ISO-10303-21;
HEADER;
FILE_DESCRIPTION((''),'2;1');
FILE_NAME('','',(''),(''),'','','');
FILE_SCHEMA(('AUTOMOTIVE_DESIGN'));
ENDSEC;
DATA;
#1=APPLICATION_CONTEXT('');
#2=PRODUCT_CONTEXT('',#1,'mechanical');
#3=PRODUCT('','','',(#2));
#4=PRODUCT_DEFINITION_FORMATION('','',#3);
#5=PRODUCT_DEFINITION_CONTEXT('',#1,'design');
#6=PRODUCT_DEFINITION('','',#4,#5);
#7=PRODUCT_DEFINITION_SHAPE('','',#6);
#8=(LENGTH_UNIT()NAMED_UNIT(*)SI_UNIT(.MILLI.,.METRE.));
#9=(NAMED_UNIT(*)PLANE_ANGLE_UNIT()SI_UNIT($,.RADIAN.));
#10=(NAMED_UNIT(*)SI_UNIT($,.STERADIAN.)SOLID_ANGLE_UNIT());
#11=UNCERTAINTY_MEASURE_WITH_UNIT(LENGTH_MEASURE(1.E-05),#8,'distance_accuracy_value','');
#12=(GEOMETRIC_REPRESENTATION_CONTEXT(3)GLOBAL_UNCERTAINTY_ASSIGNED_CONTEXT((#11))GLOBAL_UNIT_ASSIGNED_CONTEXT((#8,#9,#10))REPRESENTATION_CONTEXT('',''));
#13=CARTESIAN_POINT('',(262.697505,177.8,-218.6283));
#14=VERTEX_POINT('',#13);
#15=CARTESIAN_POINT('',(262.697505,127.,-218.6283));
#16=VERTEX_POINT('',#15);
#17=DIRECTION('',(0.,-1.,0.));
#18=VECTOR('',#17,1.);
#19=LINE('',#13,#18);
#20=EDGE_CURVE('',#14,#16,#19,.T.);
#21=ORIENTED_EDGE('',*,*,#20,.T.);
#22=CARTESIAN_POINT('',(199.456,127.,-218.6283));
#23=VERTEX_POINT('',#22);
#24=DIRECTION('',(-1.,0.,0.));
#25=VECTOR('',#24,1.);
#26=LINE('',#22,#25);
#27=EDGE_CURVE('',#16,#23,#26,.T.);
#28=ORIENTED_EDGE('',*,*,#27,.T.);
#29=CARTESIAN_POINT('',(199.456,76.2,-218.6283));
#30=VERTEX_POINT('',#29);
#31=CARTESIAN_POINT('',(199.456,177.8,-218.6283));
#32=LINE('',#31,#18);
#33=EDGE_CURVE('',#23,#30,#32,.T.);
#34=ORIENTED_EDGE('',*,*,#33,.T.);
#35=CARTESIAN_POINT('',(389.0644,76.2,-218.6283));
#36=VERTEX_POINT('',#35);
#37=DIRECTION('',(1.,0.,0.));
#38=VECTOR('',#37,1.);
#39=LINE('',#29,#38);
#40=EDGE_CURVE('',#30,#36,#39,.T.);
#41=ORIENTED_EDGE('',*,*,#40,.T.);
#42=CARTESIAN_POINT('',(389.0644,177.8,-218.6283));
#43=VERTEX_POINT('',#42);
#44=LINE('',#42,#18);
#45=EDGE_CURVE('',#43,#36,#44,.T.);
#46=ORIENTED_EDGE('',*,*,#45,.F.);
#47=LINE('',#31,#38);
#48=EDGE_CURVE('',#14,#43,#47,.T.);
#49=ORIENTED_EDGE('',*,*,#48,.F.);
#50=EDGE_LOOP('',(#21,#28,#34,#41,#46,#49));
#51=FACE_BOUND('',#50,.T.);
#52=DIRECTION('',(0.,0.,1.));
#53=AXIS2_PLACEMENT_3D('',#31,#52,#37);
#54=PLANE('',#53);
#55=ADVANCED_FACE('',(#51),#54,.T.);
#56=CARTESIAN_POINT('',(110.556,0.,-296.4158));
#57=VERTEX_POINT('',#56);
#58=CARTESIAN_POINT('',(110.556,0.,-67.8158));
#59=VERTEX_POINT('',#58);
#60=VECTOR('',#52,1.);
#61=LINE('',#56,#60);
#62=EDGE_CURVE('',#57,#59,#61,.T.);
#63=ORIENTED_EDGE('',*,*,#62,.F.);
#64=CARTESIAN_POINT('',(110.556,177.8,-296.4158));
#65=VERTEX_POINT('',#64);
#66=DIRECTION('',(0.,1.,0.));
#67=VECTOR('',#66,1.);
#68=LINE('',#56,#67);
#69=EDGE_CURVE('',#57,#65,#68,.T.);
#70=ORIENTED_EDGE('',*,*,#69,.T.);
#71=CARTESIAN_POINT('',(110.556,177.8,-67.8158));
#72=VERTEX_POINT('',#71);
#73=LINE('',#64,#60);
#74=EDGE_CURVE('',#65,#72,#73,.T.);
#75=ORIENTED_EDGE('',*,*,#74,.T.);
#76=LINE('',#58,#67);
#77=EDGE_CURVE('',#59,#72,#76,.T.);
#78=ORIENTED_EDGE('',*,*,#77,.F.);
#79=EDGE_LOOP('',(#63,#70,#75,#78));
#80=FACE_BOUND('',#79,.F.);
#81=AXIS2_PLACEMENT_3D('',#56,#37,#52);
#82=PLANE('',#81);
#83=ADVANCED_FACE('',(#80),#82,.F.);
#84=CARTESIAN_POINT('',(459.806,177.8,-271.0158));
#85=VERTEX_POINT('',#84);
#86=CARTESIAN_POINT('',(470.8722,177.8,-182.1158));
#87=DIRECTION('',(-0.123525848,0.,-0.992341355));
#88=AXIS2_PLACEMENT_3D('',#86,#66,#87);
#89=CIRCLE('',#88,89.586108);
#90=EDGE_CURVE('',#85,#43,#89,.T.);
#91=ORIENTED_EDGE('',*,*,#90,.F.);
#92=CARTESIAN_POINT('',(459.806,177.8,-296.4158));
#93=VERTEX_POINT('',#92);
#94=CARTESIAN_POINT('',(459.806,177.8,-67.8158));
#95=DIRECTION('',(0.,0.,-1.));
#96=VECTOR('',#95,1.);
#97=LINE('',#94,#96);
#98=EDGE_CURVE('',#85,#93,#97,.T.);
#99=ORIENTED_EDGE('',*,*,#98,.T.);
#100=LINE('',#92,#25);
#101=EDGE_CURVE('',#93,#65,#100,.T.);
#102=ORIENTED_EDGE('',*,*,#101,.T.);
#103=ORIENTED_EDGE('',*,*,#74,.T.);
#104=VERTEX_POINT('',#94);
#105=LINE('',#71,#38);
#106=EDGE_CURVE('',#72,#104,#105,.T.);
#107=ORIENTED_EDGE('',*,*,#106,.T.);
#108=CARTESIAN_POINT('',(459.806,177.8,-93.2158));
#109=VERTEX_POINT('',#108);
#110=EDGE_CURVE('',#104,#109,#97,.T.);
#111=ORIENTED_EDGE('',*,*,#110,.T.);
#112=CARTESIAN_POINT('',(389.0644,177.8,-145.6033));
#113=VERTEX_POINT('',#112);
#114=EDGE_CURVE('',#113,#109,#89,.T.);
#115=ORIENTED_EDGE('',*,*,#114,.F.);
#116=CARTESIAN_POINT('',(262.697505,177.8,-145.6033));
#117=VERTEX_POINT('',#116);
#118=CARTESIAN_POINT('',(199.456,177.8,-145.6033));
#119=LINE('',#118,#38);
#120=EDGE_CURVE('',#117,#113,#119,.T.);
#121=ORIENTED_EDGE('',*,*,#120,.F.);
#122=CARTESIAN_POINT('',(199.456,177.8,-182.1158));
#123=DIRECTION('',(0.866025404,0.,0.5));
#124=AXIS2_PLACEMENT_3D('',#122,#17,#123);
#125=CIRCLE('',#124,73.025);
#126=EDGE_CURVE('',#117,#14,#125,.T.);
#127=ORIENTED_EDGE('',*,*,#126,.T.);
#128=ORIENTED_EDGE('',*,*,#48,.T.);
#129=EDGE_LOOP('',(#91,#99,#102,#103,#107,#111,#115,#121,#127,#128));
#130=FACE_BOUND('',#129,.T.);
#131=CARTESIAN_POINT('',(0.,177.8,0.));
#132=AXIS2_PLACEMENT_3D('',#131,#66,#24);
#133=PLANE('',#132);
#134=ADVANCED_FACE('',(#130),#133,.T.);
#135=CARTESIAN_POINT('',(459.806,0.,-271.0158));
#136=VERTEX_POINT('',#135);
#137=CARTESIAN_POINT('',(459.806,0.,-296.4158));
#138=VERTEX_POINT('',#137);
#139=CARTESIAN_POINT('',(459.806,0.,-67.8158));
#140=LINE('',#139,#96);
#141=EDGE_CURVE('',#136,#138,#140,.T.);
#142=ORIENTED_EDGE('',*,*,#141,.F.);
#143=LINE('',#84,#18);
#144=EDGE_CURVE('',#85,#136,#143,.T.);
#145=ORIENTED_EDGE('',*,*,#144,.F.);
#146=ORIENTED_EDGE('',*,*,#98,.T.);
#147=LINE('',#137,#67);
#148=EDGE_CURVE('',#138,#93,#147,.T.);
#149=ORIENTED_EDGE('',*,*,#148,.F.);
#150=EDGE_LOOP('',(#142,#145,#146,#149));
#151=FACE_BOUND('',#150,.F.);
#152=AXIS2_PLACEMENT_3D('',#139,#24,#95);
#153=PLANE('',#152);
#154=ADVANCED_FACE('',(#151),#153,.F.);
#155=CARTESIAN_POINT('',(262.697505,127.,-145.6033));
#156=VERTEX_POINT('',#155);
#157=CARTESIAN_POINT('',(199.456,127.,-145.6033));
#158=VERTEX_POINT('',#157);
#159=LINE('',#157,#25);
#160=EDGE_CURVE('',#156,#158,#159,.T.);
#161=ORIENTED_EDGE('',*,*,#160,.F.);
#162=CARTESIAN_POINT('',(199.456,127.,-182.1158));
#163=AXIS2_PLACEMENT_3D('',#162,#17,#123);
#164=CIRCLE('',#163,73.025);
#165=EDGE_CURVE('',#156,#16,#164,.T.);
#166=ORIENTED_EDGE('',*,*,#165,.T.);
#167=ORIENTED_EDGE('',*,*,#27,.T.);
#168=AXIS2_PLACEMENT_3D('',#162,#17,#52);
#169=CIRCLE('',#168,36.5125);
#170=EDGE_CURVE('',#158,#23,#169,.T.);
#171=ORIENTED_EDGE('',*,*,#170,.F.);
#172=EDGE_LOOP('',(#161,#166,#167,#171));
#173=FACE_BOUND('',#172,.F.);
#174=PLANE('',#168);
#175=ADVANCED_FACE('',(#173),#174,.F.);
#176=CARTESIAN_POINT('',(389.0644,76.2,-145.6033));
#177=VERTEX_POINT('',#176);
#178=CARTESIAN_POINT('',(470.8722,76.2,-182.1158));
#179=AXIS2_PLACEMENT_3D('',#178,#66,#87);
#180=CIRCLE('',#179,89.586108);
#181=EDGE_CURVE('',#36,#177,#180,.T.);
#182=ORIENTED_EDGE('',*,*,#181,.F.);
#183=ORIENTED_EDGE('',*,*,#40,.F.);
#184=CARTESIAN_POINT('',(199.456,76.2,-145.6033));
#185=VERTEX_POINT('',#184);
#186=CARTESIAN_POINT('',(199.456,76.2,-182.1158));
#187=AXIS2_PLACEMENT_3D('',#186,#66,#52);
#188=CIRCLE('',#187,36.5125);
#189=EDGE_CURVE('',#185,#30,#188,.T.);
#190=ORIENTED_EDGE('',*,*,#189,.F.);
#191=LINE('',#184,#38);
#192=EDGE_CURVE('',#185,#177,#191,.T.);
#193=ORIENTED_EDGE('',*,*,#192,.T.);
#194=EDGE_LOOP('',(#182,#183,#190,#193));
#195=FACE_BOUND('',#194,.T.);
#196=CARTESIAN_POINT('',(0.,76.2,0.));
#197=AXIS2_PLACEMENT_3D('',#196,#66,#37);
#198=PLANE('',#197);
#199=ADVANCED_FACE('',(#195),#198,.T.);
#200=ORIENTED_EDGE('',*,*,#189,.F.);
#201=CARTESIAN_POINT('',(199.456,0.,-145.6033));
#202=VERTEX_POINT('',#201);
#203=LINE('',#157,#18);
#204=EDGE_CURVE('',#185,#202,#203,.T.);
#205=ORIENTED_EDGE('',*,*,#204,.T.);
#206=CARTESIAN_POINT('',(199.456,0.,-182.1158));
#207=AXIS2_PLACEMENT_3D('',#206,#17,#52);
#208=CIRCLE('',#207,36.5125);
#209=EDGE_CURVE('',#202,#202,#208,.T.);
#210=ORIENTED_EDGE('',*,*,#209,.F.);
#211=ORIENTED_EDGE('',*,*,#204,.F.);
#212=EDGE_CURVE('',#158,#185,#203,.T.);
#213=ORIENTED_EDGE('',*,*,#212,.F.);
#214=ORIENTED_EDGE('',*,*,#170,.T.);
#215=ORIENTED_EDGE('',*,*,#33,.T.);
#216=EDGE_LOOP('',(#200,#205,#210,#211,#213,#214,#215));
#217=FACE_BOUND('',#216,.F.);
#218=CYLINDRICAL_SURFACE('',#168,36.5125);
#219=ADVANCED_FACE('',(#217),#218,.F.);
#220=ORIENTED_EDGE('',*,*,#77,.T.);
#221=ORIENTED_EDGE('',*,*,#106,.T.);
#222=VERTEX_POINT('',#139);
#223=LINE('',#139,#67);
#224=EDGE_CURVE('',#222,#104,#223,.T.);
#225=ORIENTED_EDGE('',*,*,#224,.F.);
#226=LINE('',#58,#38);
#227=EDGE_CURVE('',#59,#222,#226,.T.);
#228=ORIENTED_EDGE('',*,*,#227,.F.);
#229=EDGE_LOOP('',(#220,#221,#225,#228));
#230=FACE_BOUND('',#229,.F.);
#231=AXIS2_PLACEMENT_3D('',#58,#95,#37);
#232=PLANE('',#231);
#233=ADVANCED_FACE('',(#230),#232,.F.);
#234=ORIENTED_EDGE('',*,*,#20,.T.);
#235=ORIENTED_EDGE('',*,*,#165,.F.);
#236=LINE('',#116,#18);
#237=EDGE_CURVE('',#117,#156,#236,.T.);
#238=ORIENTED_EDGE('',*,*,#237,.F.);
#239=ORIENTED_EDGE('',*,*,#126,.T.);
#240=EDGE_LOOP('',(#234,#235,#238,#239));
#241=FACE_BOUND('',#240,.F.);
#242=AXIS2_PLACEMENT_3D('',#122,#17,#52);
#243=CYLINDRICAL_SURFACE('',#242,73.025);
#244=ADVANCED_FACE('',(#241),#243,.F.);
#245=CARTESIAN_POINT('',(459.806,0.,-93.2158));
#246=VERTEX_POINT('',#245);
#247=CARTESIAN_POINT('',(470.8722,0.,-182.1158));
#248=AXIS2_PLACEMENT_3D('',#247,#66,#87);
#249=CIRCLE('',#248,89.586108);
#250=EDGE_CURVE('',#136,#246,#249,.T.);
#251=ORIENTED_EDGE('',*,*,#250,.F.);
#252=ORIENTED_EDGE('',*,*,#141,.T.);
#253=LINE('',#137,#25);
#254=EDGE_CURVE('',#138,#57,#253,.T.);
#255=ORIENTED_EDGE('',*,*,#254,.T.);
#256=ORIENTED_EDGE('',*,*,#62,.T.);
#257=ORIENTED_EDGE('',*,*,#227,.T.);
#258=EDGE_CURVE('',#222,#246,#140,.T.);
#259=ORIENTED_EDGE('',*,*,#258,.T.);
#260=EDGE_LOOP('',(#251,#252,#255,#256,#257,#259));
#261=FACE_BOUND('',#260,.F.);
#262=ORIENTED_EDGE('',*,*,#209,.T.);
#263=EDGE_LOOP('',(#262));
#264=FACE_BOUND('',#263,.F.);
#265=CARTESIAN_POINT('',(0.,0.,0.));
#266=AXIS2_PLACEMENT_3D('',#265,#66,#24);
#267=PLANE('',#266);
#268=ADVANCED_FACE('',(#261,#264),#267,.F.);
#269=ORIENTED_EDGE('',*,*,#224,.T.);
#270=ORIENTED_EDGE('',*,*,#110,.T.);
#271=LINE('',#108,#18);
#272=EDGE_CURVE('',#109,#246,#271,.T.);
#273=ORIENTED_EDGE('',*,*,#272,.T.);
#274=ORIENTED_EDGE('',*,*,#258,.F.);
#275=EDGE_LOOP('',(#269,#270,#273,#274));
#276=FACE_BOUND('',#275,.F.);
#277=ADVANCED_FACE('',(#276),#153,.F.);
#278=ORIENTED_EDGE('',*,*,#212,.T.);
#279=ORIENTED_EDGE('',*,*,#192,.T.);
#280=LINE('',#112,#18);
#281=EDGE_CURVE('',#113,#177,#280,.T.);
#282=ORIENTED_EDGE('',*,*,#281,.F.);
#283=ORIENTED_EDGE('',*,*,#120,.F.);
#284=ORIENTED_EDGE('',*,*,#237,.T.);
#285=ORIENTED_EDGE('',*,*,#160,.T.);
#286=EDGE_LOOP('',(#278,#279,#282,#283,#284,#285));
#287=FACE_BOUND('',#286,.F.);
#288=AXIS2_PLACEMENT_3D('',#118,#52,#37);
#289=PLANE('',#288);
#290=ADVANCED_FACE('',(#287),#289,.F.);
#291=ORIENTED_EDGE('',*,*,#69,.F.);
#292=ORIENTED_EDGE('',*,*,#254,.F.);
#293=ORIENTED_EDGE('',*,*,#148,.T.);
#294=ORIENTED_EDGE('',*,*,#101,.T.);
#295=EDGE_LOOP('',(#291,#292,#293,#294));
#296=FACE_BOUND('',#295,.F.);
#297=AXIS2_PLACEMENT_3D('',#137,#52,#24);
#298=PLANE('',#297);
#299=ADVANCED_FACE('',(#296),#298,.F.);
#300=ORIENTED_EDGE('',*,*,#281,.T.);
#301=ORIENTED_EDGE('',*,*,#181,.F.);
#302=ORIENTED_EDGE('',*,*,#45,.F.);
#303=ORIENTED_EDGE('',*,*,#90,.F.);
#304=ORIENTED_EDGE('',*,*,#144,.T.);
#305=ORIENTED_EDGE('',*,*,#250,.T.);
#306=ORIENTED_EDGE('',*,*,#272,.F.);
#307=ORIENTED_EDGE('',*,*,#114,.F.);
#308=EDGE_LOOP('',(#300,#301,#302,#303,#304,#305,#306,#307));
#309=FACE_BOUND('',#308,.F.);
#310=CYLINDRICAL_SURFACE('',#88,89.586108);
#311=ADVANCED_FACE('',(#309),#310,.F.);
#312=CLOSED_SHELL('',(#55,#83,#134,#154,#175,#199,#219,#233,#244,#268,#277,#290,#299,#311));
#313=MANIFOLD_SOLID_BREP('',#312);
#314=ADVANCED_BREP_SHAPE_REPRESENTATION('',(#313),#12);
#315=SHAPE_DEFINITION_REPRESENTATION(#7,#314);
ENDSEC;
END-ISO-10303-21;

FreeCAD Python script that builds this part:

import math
import FreeCAD as App
import Part
import Sketcher

V = App.Vector
Q = App.Units.Quantity

doc = App.newDocument("Part")
body = doc.addObject("PartDesign::Body", "Body")

# Sketch on XZ plane
sketch1 = doc.addObject("Sketcher::SketchObject", "Sketch")
body.addObject(sketch1)
sketch1.AttachmentSupport = (doc.XZ_Plane, [""])
sketch1.MapMode = "FlatFace"
sketch1.addGeometry([
    Part.LineSegment(V(111, -296, 0), V(111, -68, 0)),
    Part.LineSegment(V(111, -68, 0), V(460, -68, 0)),
    Part.LineSegment(V(460, -68, 0), V(460, -296, 0)),
    Part.LineSegment(V(460, -296, 0), V(111, -296, 0)),
], False)
sketch1.addConstraint([
    Sketcher.Constraint("Coincident", 0, 2, 1, 1),
    Sketcher.Constraint("Coincident", 1, 2, 2, 1),
    Sketcher.Constraint("Coincident", 2, 2, 3, 1),
    Sketcher.Constraint("Coincident", 3, 2, 0, 1),
    Sketcher.Constraint("Vertical", 0),
    Sketcher.Constraint("Horizontal", 1),
    Sketcher.Constraint("Vertical", 2),
    Sketcher.Constraint("Horizontal", 3),
    Sketcher.Constraint("DistanceY", 0, 1, 0, 2, Q("9 in")),
    Sketcher.Constraint("DistanceX", 1, 1, 1, 2, Q("13.75 in")),
    Sketcher.Constraint("DistanceX", -1, 1, 0, 2, Q("4.3526 in")),
    Sketcher.Constraint("DistanceY", 0, 2, -1, 1, 67.8158),
])
pad1 = doc.addObject("PartDesign::Pad", "Pad")
body.addObject(pad1)
pad1.Profile = sketch1
pad1.Length = Q("7 in")
pad1.Reversed = True

# Sketch on XZ plane
sketch2 = doc.addObject("Sketcher::SketchObject", "Sketch001")
body.addObject(sketch2)
sketch2.AttachmentSupport = (doc.XZ_Plane, [""])
sketch2.MapMode = "FlatFace"
sketch2.AttachmentOffset = App.Placement(V(0, 0, -7 * 25.4), App.Rotation())
sketch2.addGeometry([
    Part.LineSegment(V(460, -93, 0), V(460, -271, 0)),
    Part.ArcOfCircle(Part.Circle(V(471, -182, 0), V(0, 0, 1), 90), math.radians(97), math.radians(263)),
], False)
sketch2.addConstraint([
    Sketcher.Constraint("Coincident", 0, 1, 1, 1),
    Sketcher.Constraint("Coincident", 1, 2, 0, 2),
    Sketcher.Constraint("Vertical", 0),
    Sketcher.Constraint("DistanceY", 0, 2, 0, 1, Q("7 in")),
    Sketcher.Constraint("Radius", 1, Q("3.5270079 in")),
    Sketcher.Constraint("DistanceX", -1, 1, 0, 1, Q("18.1026 in")),
    Sketcher.Constraint("DistanceY", 1, 3, -1, 1, 182.1158),
])
pocket1 = doc.addObject("PartDesign::Pocket", "Pocket")
body.addObject(pocket1)
pocket1.Profile = sketch2
pocket1.Type = "ThroughAll"
pocket1.Reversed = True

# Sketch on XZ plane
sketch3 = doc.addObject("Sketcher::SketchObject", "Sketch002")
body.addObject(sketch3)
sketch3.AttachmentSupport = (doc.XZ_Plane, [""])
sketch3.MapMode = "FlatFace"
sketch3.AttachmentOffset = App.Placement(V(0, 0, -7 * 25.4), App.Rotation())
sketch3.addGeometry(Part.Circle(V(199, -182, 0), V(0, 0, 1), 73), False)
sketch3.addConstraint([
    Sketcher.Constraint("Diameter", 0, Q("5.75 in")),
    Sketcher.Constraint("DistanceX", -1, 1, 0, 3, Q("7.8526 in")),
    Sketcher.Constraint("DistanceY", 0, 3, -1, 1, 182.1158),
])
doc.recompute()
hole = doc.addObject("PartDesign::Hole", "Hole")
body.addObject(hole)
hole.Profile = sketch3
hole.ThreadType = "None"
hole.Diameter = Q("5.75 in")
hole.DepthType = "Dimension"
hole.Depth = Q("2 in")
hole.DrillPoint = "Flat"
hole.Reversed = True

# Sketch on XZ plane
sketch4 = doc.addObject("Sketcher::SketchObject", "Sketch003")
body.addObject(sketch4)
sketch4.AttachmentSupport = (doc.XZ_Plane, [""])
sketch4.MapMode = "FlatFace"
sketch4.AttachmentOffset = App.Placement(V(0, 0, -5 * 25.4), App.Rotation())
sketch4.addGeometry(Part.Circle(V(199, -182, 0), V(0, 0, 1), 37), False)
sketch4.addConstraint([
    Sketcher.Constraint("Diameter", 0, Q("2.875 in")),
    Sketcher.Constraint("DistanceX", -1, 1, 0, 3, Q("7.8526 in")),
    Sketcher.Constraint("DistanceY", 0, 3, -1, 1, 182.1158),
])
doc.recompute()
hole2 = doc.addObject("PartDesign::Hole", "Hole001")
body.addObject(hole2)
hole2.Profile = sketch4
hole2.ThreadType = "None"
hole2.Diameter = Q("2.875 in")
hole2.DepthType = "ThroughAll"
hole2.Reversed = True

# Sketch on XZ plane
sketch5 = doc.addObject("Sketcher::SketchObject", "Sketch004")
body.addObject(sketch5)
sketch5.AttachmentSupport = (doc.XZ_Plane, [""])
sketch5.MapMode = "FlatFace"
sketch5.AttachmentOffset = App.Placement(V(0, 0, -7 * 25.4), App.Rotation())
sketch5.addGeometry([
    Part.ArcOfCircle(Part.Circle(V(199, -182, 0), V(0, 0, 1), 37), math.radians(-90), math.radians(90)),
    Part.LineSegment(V(199, -146, 0), V(389, -146, 0)),
    Part.ArcOfCircle(Part.Circle(V(471, -182, 0), V(0, 0, 1), 90), math.radians(156), math.radians(204)),
    Part.LineSegment(V(389, -219, 0), V(199, -219, 0)),
], False)
sketch5.addConstraint([
    Sketcher.Constraint("Tangent", 0, 2, 1, 1),
    Sketcher.Constraint("Coincident", 1, 2, 2, 1),
    Sketcher.Constraint("Coincident", 2, 2, 3, 1),
    Sketcher.Constraint("Tangent", 3, 2, 0, 1),
    Sketcher.Constraint("Horizontal", 1),
    Sketcher.Constraint("Horizontal", 3),
    Sketcher.Constraint("Horizontal", 0, 3, 2, 3),
    Sketcher.Constraint("Radius", 0, Q("1.4375 in")),
    Sketcher.Constraint("Radius", 2, Q("3.5270079 in")),
    Sketcher.Constraint("DistanceX", 1, 1, 1, 2, Q("7.4649 in")),
    Sketcher.Constraint("DistanceX", -1, 1, 0, 3, Q("7.8526 in")),
    Sketcher.Constraint("DistanceY", 0, 3, -1, 1, 182.1158),
])
pocket2 = doc.addObject("PartDesign::Pocket", "Pocket001")
body.addObject(pocket2)
pocket2.Profile = sketch5
pocket2.Length = Q("4 in")
pocket2.Reversed = True

doc.recompute()
